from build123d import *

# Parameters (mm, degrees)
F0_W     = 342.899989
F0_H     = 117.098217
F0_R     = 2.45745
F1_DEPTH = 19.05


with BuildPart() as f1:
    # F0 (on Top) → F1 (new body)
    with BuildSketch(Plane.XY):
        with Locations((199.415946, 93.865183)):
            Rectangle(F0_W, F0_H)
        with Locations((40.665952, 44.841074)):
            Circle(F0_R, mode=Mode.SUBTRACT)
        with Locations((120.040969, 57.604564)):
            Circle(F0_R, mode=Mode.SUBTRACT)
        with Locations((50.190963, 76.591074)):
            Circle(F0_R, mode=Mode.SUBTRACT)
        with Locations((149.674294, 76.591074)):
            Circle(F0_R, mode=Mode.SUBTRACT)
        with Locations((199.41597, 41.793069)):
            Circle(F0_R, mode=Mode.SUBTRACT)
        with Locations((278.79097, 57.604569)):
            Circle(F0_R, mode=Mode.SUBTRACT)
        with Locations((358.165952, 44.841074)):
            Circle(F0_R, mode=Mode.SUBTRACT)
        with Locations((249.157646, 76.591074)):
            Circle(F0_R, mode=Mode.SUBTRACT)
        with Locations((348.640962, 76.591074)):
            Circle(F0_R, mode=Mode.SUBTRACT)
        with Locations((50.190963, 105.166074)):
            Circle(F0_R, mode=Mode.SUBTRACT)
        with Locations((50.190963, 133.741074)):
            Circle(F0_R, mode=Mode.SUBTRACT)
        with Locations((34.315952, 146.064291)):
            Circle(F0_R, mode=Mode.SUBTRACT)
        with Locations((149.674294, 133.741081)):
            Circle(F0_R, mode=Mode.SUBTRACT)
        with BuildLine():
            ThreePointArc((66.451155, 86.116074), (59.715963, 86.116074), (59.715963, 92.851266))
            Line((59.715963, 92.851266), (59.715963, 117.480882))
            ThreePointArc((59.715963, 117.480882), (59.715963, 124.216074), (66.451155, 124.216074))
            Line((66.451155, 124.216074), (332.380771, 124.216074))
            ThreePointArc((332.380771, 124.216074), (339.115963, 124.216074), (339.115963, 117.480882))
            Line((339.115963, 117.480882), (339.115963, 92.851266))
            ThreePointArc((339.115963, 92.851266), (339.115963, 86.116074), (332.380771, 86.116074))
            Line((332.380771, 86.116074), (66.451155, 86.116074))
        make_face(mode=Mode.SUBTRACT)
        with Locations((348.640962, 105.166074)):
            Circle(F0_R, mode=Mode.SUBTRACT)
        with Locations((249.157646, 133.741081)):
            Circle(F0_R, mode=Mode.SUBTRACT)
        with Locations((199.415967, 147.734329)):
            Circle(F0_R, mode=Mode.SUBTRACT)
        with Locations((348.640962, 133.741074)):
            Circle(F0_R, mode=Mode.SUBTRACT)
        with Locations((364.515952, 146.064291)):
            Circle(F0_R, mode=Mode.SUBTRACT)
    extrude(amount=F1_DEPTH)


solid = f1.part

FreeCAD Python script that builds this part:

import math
import FreeCAD as App
import Part
import Sketcher
from FreeCAD import Vector
Q = App.Units.Quantity

doc = App.newDocument("Part")
body = doc.addObject("PartDesign::Body", "Body")

sketch1 = doc.addObject("Sketcher::SketchObject", "Sketch")
body.addObject(sketch1)
sketch1.AttachmentSupport = (doc.XY_Plane, [""])
sketch1.MapMode = "FlatFace"
sketch1.addGeometry([
    Part.LineSegment(Vector(28, 152.4, 0), Vector(28, 35.3, 0)),
    Part.LineSegment(Vector(28, 35.3, 0), Vector(370.9, 35.3, 0)),
    Part.LineSegment(Vector(370.9, 35.3, 0), Vector(370.9, 152.4, 0)),
    Part.LineSegment(Vector(370.9, 152.4, 0), Vector(28, 152.4, 0)),
    Part.Circle(Vector(40.7, 44.8, 0), Vector(0, 0, 1), 2.5),
    Part.Circle(Vector(120, 57.6, 0), Vector(0, 0, 1), 2.5),
    Part.Circle(Vector(50.2, 76.6, 0), Vector(0, 0, 1), 2.5),
    Part.Circle(Vector(149.7, 76.6, 0), Vector(0, 0, 1), 2.5),
    Part.Circle(Vector(199.4, 41.8, 0), Vector(0, 0, 1), 2.5),
    Part.Circle(Vector(278.8, 57.6, 0), Vector(0, 0, 1), 2.5),
    Part.Circle(Vector(358.2, 44.8, 0), Vector(0, 0, 1), 2.5),
    Part.Circle(Vector(249.2, 76.6, 0), Vector(0, 0, 1), 2.5),
    Part.Circle(Vector(348.6, 76.6, 0), Vector(0, 0, 1), 2.5),
    Part.Circle(Vector(50.2, 105.2, 0), Vector(0, 0, 1), 2.5),
    Part.Circle(Vector(50.2, 133.7, 0), Vector(0, 0, 1), 2.5),
    Part.Circle(Vector(34.3, 146.1, 0), Vector(0, 0, 1), 2.5),
    Part.Circle(Vector(149.7, 133.7, 0), Vector(0, 0, 1), 2.5),
    Part.LineSegment(Vector(332.4, 86.1, 0), Vector(66.5, 86.1, 0)),
    Part.ArcOfCircle(Part.Circle(Vector(63.1, 89.5, 0), Vector(0, 0, 1), 4.8), math.radians(135), math.radians(315)),
    Part.LineSegment(Vector(59.7, 92.9, 0), Vector(59.7, 117.5, 0)),
    Part.ArcOfCircle(Part.Circle(Vector(63.1, 120.8, 0), Vector(0, 0, 1), 4.8), math.radians(45), math.radians(225)),
    Part.LineSegment(Vector(66.5, 124.2, 0), Vector(332.4, 124.2, 0)),
    Part.ArcOfCircle(Part.Circle(Vector(335.7, 120.8, 0), Vector(0, 0, 1), 4.8), math.radians(-45), math.radians(135)),
    Part.LineSegment(Vector(339.1, 117.5, 0), Vector(339.1, 92.9, 0)),
    Part.ArcOfCircle(Part.Circle(Vector(335.7, 89.5, 0), Vector(0, 0, 1), 4.8), math.radians(-135), math.radians(45)),
    Part.Circle(Vector(348.6, 105.2, 0), Vector(0, 0, 1), 2.5),
    Part.Circle(Vector(249.2, 133.7, 0), Vector(0, 0, 1), 2.5),
    Part.Circle(Vector(199.4, 147.7, 0), Vector(0, 0, 1), 2.5),
    Part.Circle(Vector(348.6, 133.7, 0), Vector(0, 0, 1), 2.5),
    Part.Circle(Vector(364.5, 146.1, 0), Vector(0, 0, 1), 2.5),
], False)
sketch1.addConstraint([
    Sketcher.Constraint("Coincident", 0, 2, 1, 1),
    Sketcher.Constraint("Coincident", 1, 2, 2, 1),
    Sketcher.Constraint("Coincident", 2, 2, 3, 1),
    Sketcher.Constraint("Coincident", 3, 2, 0, 1),
    Sketcher.Constraint("Coincident", 17, 2, 18, 2),
    Sketcher.Constraint("Coincident", 18, 1, 19, 1),
    Sketcher.Constraint("Coincident", 19, 2, 20, 2),
    Sketcher.Constraint("Coincident", 20, 1, 21, 1),
    Sketcher.Constraint("Coincident", 21, 2, 22, 2),
    Sketcher.Constraint("Coincident", 22, 1, 23, 1),
    Sketcher.Constraint("Coincident", 23, 2, 24, 2),
    Sketcher.Constraint("Coincident", 24, 1, 17, 1),
    Sketcher.Constraint("Vertical", 0),
    Sketcher.Constraint("Horizontal", 1),
    Sketcher.Constraint("Vertical", 2),
    Sketcher.Constraint("Horizontal", 3),
    Sketcher.Constraint("Horizontal", 17),
    Sketcher.Constraint("Vertical", 19),
    Sketcher.Constraint("Horizontal", 21),
    Sketcher.Constraint("Vertical", 23),
    Sketcher.Constraint("Equal", 4, 5),
    Sketcher.Constraint("Equal", 5, 6),
    Sketcher.Constraint("Equal", 6, 7),
    Sketcher.Constraint("Equal", 7, 8),
    Sketcher.Constraint("Equal", 8, 9),
    Sketcher.Constraint("Equal", 9, 10),
    Sketcher.Constraint("Equal", 10, 11),
    Sketcher.Constraint("Equal", 11, 12),
    Sketcher.Constraint("Equal", 12, 13),
    Sketcher.Constraint("Equal", 13, 14),
    Sketcher.Constraint("Equal", 14, 15),
    Sketcher.Constraint("Equal", 15, 16),
    Sketcher.Constraint("Equal", 18, 20),
    Sketcher.Constraint("Equal", 20, 22),
    Sketcher.Constraint("Equal", 22, 24),
    Sketcher.Constraint("Equal", 16, 25),
    Sketcher.Constraint("Equal", 25, 26),
    Sketcher.Constraint("Equal", 26, 27),
    Sketcher.Constraint("Equal", 27, 28),
    Sketcher.Constraint("Equal", 28, 29),
    Sketcher.Constraint("Horizontal", 6, 3, 7, 3),
    Sketcher.Constraint("Horizontal", 4, 3, 10, 3),
    Sketcher.Constraint("Horizontal", 7, 3, 11, 3),
    Sketcher.Constraint("Horizontal", 11, 3, 12, 3),
    Sketcher.Constraint("Horizontal", 20, 3, 22, 3),
    Sketcher.Constraint("Horizontal", 18, 3, 24, 3),
    Sketcher.Constraint("Horizontal", 13, 3, 25, 3),
    Sketcher.Constraint("Horizontal", 16, 3, 26, 3),
    Sketcher.Constraint("Horizontal", 14, 3, 28, 3),
    Sketcher.Constraint("Horizontal", 15, 3, 29, 3),
    Sketcher.Constraint("Horizontal", 19, 2, 22, 1),
    Sketcher.Constraint("Horizontal", 18, 1, 23, 2),
    Sketcher.Constraint("Vertical", 6, 3, 13, 3),
    Sketcher.Constraint("Vertical", 13, 3, 14, 3),
    Sketcher.Constraint("Vertical", 7, 3, 16, 3),
    Sketcher.Constraint("Vertical", 18, 3, 20, 3),
    Sketcher.Constraint("Vertical", 12, 3, 25, 3),
    Sketcher.Constraint("Vertical", 11, 3, 26, 3),
    Sketcher.Constraint("Vertical", 25, 3, 28, 3),
    Sketcher.Constraint("Vertical", 17, 2, 20, 1),
    Sketcher.Constraint("Radius", 18, Q("0.1875 in")),
    Sketcher.Constraint("Diameter", 4, Q("0.1935 in")),
    Sketcher.Constraint("DistanceY", 4, 3, 14, 3, Q("3.5 in")),
    Sketcher.Constraint("DistanceX", 0, 2, 4, 3, Q("0.5 in")),
    Sketcher.Constraint("DistanceY", 4, 3, 6, 3, Q("1.25 in")),
    Sketcher.Constraint("DistanceY", 8, 3, 7, 3, Q("1.3700002 in")),
    Sketcher.Constraint("DistanceX", 5, 3, 9, 3, Q("6.25 in")),
    Sketcher.Constraint("DistanceX", 15, 3, 4, 3, Q("0.25 in")),
    Sketcher.Constraint("DistanceY", 0, 2, 13, 3, Q("2.75 in")),
    Sketcher.Constraint("DistanceY", 29, 3, 2, 2, Q("0.25 in")),
    Sketcher.Constraint("DistanceY", 17, 2, 13, 3, Q("0.75 in")),
    Sketcher.Constraint("DistanceY", 13, 3, 20, 1, Q("0.75 in")),
    Sketcher.Constraint("DistanceX", 5, 3, 8, 3, Q("3.125 in")),
    Sketcher.Constraint("DistanceY", 6, 3, 13, 3, Q("1.125 in")),
    Sketcher.Constraint("DistanceX", 13, 3, 18, 1, Q("0.375 in")),
    Sketcher.Constraint("DistanceX", 22, 1, 25, 3, Q("0.375 in")),
    Sketcher.Constraint("DistanceY", 8, 3, 5, 3, Q("0.6224998 in")),
    Sketcher.Constraint("DistanceY", 8, 3, 9, 3, Q("0.6225 in")),
    Sketcher.Constraint("DistanceX", 1, 1, 1, 2, Q("342.899989 mm")),
    Sketcher.Constraint("DistanceY", 9, 3, 24, 3, Q("31.879101 mm")),
    Sketcher.Constraint("DistanceX", 17, 2, 17, 1, Q("265.929616 mm")),
    Sketcher.Constraint("DistanceY", 0, 2, 0, 1, Q("117.098217 mm")),
    Sketcher.Constraint("DistanceY", 19, 1, 19, 2, Q("24.629616 mm")),
    Sketcher.Constraint("DistanceX", -1, 1, 4, 3, Q("40.665952 mm")),
    Sketcher.Constraint("DistanceX", -1, 1, 5, 3, Q("120.040969 mm")),
    Sketcher.Constraint("DistanceY", -1, 1, 8, 3, Q("41.793069 mm")),
    Sketcher.Constraint("DistanceX", -1, 1, 10, 3, Q("358.165952 mm")),
    Sketcher.Constraint("DistanceX", -1, 1, 12, 3, Q("348.640962 mm")),
    Sketcher.Constraint("DistanceY", -1, 1, 16, 3, Q("133.741081 mm")),
    Sketcher.Constraint("DistanceY", -1, 1, 27, 3, Q("147.734329 mm")),
    Sketcher.Constraint("DistanceX", 6, 3, 7, 3, Q("99.483331 mm")),
    Sketcher.Constraint("DistanceX", 7, 3, 11, 3, Q("99.483352 mm")),
    Sketcher.Constraint("DistanceX", 27, 3, 26, 3, Q("49.741679 mm")),
    Sketcher.Constraint("DistanceX", 28, 3, 29, 3, Q("15.87499 mm")),
])
pad1 = doc.addObject("PartDesign::Pad", "Pad")
body.addObject(pad1)
pad1.Profile = sketch1
pad1.Length = Q("0.75 in")

doc.recompute()
